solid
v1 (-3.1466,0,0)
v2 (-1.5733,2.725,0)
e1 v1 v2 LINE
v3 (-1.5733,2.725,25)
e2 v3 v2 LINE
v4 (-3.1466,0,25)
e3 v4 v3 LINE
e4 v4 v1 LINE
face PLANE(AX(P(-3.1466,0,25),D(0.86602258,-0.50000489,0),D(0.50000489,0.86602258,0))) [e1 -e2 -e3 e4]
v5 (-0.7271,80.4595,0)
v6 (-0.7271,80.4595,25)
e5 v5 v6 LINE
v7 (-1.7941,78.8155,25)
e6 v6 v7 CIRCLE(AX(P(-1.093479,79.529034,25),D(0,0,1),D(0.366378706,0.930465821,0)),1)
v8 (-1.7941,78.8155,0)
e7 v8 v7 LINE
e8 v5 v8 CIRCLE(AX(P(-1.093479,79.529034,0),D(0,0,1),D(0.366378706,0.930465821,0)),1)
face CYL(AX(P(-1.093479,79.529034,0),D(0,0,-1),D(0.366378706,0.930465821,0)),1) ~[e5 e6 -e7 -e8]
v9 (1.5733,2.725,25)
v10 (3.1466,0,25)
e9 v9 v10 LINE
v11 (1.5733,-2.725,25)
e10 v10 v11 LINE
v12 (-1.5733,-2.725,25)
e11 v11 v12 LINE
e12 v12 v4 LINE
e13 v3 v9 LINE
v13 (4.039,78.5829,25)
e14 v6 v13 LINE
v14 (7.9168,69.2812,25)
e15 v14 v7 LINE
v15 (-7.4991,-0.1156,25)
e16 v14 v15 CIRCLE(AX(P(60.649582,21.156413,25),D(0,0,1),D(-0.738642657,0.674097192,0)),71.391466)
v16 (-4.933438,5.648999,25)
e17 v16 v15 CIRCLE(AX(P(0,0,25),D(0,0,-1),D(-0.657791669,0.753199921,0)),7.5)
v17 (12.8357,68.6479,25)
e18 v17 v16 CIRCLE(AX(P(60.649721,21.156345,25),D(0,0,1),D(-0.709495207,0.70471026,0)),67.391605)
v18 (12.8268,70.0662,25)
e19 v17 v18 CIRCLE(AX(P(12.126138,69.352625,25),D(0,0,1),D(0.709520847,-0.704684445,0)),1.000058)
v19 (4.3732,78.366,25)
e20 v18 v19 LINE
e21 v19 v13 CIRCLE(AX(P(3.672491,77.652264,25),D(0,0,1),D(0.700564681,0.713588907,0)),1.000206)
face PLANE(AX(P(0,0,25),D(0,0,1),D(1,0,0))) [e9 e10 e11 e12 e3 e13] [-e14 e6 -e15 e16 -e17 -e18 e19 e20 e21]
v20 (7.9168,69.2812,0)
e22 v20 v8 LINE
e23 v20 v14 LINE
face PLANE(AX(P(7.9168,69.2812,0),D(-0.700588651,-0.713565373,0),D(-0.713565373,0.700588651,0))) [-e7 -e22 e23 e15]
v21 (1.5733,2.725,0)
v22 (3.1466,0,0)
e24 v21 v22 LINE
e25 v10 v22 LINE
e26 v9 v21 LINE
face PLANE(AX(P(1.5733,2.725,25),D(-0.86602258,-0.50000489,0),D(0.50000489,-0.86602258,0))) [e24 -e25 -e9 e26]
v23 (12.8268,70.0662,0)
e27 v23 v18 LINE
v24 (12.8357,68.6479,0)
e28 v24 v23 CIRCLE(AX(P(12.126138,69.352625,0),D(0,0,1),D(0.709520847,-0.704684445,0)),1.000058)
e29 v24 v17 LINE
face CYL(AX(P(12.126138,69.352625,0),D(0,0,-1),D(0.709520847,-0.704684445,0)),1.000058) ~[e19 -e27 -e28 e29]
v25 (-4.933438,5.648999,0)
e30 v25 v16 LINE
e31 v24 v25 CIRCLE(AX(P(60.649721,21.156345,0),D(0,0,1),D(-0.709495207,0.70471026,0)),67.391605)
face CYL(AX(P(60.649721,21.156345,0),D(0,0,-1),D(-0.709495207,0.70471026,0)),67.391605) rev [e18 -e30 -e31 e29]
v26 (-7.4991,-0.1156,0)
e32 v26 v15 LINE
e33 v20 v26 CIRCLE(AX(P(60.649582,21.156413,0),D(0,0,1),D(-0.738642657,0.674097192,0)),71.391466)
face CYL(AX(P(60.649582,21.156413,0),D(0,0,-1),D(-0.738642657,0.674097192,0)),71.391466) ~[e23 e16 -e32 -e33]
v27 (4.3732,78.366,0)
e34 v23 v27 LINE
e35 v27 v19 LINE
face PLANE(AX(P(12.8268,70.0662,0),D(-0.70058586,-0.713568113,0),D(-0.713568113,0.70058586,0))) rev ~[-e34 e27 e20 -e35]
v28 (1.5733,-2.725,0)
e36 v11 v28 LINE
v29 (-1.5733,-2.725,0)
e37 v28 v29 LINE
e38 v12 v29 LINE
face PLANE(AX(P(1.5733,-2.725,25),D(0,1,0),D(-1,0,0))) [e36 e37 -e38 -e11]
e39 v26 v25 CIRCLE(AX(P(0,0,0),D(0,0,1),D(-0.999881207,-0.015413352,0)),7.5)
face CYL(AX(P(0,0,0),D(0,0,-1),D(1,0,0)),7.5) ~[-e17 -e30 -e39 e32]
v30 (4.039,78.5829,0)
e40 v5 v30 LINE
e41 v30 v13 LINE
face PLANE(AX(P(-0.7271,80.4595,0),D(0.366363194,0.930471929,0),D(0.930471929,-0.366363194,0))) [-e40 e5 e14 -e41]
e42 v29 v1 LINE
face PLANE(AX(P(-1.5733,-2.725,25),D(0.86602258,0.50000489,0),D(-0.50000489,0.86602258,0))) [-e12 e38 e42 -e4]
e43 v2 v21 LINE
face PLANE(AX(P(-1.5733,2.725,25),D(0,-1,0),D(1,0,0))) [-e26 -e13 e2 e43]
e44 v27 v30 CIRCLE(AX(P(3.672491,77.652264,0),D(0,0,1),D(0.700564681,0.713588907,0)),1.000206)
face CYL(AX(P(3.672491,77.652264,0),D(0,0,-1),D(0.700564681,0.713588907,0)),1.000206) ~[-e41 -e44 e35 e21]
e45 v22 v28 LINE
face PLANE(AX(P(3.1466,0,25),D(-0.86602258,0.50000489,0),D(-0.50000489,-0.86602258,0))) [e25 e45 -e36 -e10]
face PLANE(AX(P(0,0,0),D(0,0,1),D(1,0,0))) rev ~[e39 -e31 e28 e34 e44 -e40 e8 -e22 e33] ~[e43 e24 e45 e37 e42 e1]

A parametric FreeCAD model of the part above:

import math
import FreeCAD as App
import Part
import Sketcher

V = App.Vector
Q = App.Units.Quantity


def add_polygon(sketch, points):
    """Adds a closed chain of lines whose ends are joined by coincident constraints."""
    first, n = sketch.GeometryCount, len(points)
    for a, b in zip(points, points[1:] + points[:1]):
        sketch.addGeometry(Part.LineSegment(App.Vector(*a, 0), App.Vector(*b, 0)), False)
    for i in range(n):
        sketch.addConstraint(Sketcher.Constraint("Coincident", first + i, 2, first + (i + 1) % n, 1))

doc = App.newDocument("Part")
body = doc.addObject("PartDesign::Body", "Body")

sketch1 = body.newObject("Sketcher::SketchObject", "Sketch")
sketch1.AttachmentSupport = (doc.getObject("XY_Plane"), [""])
sketch1.MapMode = "FlatFace"
sketch1.addGeometry(Part.ArcOfCircle(Part.Circle(V(60.6498, 21.1563, 0), V(0, 0, 1), 67.391693), math.radians(135.193879), math.radians(193.303376)), False)
sketch1.addGeometry(Part.ArcOfCircle(Part.Circle(V(12.1262, 69.3526, 0), V(0, 0, 1), 0.999996), math.radians(-44.805531), math.radians(45.526675)), False)
sketch1.addGeometry(Part.LineSegment(V(12.8268, 70.0662, 0), V(4.3732, 78.366, 0)), False)
sketch1.addGeometry(Part.ArcOfCircle(Part.Circle(V(3.6726, 77.6524, 0), V(0, 0, 1), 1.000033), math.radians(45.526675), math.radians(68.507127)), False)
sketch1.addGeometry(Part.LineSegment(V(4.039, 78.5829, 0), V(-0.7271, 80.4595, 0)), False)
sketch1.addGeometry(Part.ArcOfCircle(Part.Circle(V(-1.0935, 79.5291, 0), V(0, 0, 1), 0.999947), math.radians(68.505028), math.radians(225.526675)), False)
sketch1.addGeometry(Part.LineSegment(V(-1.7941, 78.8155, 0), V(7.9168, 69.2812, 0)), False)
sketch1.addGeometry(Part.ArcOfCircle(Part.Circle(V(60.6498, 21.1563, 0), V(0, 0, 1), 71.391703), math.radians(137.61597), math.radians(197.335157)), False)
sketch1.addGeometry(Part.ArcOfCircle(Part.Circle(V(0, 0, 0), V(0, 0, 1), 7.5), math.radians(-179.116845), math.radians(131.13167)), False)
sketch1.addConstraint(Sketcher.Constraint("Tangent", 0, 1, 1, 1))
sketch1.addConstraint(Sketcher.Constraint("Tangent", 1, 2, 2, 1))
sketch1.addConstraint(Sketcher.Constraint("Tangent", 2, 2, 3, 1))
sketch1.addConstraint(Sketcher.Constraint("Tangent", 3, 2, 4, 1))
sketch1.addConstraint(Sketcher.Constraint("Tangent", 4, 2, 5, 1))
sketch1.addConstraint(Sketcher.Constraint("Tangent", 5, 2, 6, 1))
sketch1.addConstraint(Sketcher.Constraint("Coincident", 6, 2, 7, 1))
sketch1.addConstraint(Sketcher.Constraint("Coincident", 7, 2, 8, 1))
sketch1.addConstraint(Sketcher.Constraint("Coincident", 8, 2, 0, 2))
sketch1.addConstraint(Sketcher.Constraint("Coincident", 8, 3, -1, 1))
sketch1.addConstraint(Sketcher.Constraint("Coincident", 7, 3, 0, 3))
sketch1.addConstraint(Sketcher.Constraint("Equal", 1, 3))
sketch1.addConstraint(Sketcher.Constraint("Equal", 3, 5))
sketch1.addConstraint(Sketcher.Constraint("Parallel", 2, 6))
sketch1.addConstraint(Sketcher.Constraint("Radius", 1, 1.0))
sketch1.addConstraint(Sketcher.Constraint("Radius", 8, 7.5))
sketch1.addConstraint(Sketcher.Constraint("Radius", 0, 67.3917))
sketch1.addConstraint(Sketcher.Constraint("Radius", 7, 71.3917))
sketch1.addConstraint(Sketcher.Constraint("DistanceX", 6, 2, 1, 2, 4.91))
sketch1.addConstraint(Sketcher.Constraint("Distance", 2, 11.847))
sketch1.addConstraint(Sketcher.Constraint("Distance", 6, 13.609))
sketch1.addConstraint(Sketcher.Constraint("DistanceY", -1, 1, 5, 3, 79.529))
sketch1.addConstraint(Sketcher.Constraint("DistanceY", -1, 1, 0, 1, 68.648))
sketch1.addConstraint(Sketcher.Constraint("DistanceY", -1, 1, 2, 2, 78.366))
sketch1.addConstraint(Sketcher.Constraint("DistanceX", -1, 1, 3, 2, 4.039))
pad1 = body.newObject("PartDesign::Pad", "Pad")
pad1.Profile = sketch1
pad1.Length = 25

sketch2 = body.newObject("Sketcher::SketchObject", "Sketch001")
sketch2.AttachmentSupport = (doc.getObject("XY_Plane"), [""])
sketch2.MapMode = "FlatFace"
sketch2.AttachmentOffset = App.Placement(V(0, 0, 25), App.Rotation())
add_polygon(sketch2, [(3.1466, 0), (1.5733, 2.725), (-1.5733, 2.725), (-3.1466, 0), (-1.5733, -2.725), (1.5733, -2.725)])
sketch2.addConstraint(Sketcher.Constraint("Horizontal", 1))
sketch2.addConstraint(Sketcher.Constraint("Horizontal", 4))
sketch2.addConstraint(Sketcher.Constraint("Symmetric", 0, 2, 3, 2, -1, 1))
sketch2.addConstraint(Sketcher.Constraint("Symmetric", 2, 2, 5, 2, -1, 1))
sketch2.addConstraint(Sketcher.Constraint("PointOnObject", 2, 2, -1))
sketch2.addConstraint(Sketcher.Constraint("Parallel", 2, 5))
sketch2.addConstraint(Sketcher.Constraint("Vertical", 1, 2, 3, 2))
sketch2.addConstraint(Sketcher.Constraint("Angle", 0, Q("120.0003 deg")))
sketch2.addConstraint(Sketcher.Constraint("DistanceY", 3, 2, 1, 2, 5.45))
sketch2.addConstraint(Sketcher.Constraint("DistanceX", 2, 2, 0, 2, 4.72))
pocket1 = body.newObject("PartDesign::Pocket", "Pocket")
pocket1.Profile = sketch2
pocket1.Length = 25

doc.recompute()
